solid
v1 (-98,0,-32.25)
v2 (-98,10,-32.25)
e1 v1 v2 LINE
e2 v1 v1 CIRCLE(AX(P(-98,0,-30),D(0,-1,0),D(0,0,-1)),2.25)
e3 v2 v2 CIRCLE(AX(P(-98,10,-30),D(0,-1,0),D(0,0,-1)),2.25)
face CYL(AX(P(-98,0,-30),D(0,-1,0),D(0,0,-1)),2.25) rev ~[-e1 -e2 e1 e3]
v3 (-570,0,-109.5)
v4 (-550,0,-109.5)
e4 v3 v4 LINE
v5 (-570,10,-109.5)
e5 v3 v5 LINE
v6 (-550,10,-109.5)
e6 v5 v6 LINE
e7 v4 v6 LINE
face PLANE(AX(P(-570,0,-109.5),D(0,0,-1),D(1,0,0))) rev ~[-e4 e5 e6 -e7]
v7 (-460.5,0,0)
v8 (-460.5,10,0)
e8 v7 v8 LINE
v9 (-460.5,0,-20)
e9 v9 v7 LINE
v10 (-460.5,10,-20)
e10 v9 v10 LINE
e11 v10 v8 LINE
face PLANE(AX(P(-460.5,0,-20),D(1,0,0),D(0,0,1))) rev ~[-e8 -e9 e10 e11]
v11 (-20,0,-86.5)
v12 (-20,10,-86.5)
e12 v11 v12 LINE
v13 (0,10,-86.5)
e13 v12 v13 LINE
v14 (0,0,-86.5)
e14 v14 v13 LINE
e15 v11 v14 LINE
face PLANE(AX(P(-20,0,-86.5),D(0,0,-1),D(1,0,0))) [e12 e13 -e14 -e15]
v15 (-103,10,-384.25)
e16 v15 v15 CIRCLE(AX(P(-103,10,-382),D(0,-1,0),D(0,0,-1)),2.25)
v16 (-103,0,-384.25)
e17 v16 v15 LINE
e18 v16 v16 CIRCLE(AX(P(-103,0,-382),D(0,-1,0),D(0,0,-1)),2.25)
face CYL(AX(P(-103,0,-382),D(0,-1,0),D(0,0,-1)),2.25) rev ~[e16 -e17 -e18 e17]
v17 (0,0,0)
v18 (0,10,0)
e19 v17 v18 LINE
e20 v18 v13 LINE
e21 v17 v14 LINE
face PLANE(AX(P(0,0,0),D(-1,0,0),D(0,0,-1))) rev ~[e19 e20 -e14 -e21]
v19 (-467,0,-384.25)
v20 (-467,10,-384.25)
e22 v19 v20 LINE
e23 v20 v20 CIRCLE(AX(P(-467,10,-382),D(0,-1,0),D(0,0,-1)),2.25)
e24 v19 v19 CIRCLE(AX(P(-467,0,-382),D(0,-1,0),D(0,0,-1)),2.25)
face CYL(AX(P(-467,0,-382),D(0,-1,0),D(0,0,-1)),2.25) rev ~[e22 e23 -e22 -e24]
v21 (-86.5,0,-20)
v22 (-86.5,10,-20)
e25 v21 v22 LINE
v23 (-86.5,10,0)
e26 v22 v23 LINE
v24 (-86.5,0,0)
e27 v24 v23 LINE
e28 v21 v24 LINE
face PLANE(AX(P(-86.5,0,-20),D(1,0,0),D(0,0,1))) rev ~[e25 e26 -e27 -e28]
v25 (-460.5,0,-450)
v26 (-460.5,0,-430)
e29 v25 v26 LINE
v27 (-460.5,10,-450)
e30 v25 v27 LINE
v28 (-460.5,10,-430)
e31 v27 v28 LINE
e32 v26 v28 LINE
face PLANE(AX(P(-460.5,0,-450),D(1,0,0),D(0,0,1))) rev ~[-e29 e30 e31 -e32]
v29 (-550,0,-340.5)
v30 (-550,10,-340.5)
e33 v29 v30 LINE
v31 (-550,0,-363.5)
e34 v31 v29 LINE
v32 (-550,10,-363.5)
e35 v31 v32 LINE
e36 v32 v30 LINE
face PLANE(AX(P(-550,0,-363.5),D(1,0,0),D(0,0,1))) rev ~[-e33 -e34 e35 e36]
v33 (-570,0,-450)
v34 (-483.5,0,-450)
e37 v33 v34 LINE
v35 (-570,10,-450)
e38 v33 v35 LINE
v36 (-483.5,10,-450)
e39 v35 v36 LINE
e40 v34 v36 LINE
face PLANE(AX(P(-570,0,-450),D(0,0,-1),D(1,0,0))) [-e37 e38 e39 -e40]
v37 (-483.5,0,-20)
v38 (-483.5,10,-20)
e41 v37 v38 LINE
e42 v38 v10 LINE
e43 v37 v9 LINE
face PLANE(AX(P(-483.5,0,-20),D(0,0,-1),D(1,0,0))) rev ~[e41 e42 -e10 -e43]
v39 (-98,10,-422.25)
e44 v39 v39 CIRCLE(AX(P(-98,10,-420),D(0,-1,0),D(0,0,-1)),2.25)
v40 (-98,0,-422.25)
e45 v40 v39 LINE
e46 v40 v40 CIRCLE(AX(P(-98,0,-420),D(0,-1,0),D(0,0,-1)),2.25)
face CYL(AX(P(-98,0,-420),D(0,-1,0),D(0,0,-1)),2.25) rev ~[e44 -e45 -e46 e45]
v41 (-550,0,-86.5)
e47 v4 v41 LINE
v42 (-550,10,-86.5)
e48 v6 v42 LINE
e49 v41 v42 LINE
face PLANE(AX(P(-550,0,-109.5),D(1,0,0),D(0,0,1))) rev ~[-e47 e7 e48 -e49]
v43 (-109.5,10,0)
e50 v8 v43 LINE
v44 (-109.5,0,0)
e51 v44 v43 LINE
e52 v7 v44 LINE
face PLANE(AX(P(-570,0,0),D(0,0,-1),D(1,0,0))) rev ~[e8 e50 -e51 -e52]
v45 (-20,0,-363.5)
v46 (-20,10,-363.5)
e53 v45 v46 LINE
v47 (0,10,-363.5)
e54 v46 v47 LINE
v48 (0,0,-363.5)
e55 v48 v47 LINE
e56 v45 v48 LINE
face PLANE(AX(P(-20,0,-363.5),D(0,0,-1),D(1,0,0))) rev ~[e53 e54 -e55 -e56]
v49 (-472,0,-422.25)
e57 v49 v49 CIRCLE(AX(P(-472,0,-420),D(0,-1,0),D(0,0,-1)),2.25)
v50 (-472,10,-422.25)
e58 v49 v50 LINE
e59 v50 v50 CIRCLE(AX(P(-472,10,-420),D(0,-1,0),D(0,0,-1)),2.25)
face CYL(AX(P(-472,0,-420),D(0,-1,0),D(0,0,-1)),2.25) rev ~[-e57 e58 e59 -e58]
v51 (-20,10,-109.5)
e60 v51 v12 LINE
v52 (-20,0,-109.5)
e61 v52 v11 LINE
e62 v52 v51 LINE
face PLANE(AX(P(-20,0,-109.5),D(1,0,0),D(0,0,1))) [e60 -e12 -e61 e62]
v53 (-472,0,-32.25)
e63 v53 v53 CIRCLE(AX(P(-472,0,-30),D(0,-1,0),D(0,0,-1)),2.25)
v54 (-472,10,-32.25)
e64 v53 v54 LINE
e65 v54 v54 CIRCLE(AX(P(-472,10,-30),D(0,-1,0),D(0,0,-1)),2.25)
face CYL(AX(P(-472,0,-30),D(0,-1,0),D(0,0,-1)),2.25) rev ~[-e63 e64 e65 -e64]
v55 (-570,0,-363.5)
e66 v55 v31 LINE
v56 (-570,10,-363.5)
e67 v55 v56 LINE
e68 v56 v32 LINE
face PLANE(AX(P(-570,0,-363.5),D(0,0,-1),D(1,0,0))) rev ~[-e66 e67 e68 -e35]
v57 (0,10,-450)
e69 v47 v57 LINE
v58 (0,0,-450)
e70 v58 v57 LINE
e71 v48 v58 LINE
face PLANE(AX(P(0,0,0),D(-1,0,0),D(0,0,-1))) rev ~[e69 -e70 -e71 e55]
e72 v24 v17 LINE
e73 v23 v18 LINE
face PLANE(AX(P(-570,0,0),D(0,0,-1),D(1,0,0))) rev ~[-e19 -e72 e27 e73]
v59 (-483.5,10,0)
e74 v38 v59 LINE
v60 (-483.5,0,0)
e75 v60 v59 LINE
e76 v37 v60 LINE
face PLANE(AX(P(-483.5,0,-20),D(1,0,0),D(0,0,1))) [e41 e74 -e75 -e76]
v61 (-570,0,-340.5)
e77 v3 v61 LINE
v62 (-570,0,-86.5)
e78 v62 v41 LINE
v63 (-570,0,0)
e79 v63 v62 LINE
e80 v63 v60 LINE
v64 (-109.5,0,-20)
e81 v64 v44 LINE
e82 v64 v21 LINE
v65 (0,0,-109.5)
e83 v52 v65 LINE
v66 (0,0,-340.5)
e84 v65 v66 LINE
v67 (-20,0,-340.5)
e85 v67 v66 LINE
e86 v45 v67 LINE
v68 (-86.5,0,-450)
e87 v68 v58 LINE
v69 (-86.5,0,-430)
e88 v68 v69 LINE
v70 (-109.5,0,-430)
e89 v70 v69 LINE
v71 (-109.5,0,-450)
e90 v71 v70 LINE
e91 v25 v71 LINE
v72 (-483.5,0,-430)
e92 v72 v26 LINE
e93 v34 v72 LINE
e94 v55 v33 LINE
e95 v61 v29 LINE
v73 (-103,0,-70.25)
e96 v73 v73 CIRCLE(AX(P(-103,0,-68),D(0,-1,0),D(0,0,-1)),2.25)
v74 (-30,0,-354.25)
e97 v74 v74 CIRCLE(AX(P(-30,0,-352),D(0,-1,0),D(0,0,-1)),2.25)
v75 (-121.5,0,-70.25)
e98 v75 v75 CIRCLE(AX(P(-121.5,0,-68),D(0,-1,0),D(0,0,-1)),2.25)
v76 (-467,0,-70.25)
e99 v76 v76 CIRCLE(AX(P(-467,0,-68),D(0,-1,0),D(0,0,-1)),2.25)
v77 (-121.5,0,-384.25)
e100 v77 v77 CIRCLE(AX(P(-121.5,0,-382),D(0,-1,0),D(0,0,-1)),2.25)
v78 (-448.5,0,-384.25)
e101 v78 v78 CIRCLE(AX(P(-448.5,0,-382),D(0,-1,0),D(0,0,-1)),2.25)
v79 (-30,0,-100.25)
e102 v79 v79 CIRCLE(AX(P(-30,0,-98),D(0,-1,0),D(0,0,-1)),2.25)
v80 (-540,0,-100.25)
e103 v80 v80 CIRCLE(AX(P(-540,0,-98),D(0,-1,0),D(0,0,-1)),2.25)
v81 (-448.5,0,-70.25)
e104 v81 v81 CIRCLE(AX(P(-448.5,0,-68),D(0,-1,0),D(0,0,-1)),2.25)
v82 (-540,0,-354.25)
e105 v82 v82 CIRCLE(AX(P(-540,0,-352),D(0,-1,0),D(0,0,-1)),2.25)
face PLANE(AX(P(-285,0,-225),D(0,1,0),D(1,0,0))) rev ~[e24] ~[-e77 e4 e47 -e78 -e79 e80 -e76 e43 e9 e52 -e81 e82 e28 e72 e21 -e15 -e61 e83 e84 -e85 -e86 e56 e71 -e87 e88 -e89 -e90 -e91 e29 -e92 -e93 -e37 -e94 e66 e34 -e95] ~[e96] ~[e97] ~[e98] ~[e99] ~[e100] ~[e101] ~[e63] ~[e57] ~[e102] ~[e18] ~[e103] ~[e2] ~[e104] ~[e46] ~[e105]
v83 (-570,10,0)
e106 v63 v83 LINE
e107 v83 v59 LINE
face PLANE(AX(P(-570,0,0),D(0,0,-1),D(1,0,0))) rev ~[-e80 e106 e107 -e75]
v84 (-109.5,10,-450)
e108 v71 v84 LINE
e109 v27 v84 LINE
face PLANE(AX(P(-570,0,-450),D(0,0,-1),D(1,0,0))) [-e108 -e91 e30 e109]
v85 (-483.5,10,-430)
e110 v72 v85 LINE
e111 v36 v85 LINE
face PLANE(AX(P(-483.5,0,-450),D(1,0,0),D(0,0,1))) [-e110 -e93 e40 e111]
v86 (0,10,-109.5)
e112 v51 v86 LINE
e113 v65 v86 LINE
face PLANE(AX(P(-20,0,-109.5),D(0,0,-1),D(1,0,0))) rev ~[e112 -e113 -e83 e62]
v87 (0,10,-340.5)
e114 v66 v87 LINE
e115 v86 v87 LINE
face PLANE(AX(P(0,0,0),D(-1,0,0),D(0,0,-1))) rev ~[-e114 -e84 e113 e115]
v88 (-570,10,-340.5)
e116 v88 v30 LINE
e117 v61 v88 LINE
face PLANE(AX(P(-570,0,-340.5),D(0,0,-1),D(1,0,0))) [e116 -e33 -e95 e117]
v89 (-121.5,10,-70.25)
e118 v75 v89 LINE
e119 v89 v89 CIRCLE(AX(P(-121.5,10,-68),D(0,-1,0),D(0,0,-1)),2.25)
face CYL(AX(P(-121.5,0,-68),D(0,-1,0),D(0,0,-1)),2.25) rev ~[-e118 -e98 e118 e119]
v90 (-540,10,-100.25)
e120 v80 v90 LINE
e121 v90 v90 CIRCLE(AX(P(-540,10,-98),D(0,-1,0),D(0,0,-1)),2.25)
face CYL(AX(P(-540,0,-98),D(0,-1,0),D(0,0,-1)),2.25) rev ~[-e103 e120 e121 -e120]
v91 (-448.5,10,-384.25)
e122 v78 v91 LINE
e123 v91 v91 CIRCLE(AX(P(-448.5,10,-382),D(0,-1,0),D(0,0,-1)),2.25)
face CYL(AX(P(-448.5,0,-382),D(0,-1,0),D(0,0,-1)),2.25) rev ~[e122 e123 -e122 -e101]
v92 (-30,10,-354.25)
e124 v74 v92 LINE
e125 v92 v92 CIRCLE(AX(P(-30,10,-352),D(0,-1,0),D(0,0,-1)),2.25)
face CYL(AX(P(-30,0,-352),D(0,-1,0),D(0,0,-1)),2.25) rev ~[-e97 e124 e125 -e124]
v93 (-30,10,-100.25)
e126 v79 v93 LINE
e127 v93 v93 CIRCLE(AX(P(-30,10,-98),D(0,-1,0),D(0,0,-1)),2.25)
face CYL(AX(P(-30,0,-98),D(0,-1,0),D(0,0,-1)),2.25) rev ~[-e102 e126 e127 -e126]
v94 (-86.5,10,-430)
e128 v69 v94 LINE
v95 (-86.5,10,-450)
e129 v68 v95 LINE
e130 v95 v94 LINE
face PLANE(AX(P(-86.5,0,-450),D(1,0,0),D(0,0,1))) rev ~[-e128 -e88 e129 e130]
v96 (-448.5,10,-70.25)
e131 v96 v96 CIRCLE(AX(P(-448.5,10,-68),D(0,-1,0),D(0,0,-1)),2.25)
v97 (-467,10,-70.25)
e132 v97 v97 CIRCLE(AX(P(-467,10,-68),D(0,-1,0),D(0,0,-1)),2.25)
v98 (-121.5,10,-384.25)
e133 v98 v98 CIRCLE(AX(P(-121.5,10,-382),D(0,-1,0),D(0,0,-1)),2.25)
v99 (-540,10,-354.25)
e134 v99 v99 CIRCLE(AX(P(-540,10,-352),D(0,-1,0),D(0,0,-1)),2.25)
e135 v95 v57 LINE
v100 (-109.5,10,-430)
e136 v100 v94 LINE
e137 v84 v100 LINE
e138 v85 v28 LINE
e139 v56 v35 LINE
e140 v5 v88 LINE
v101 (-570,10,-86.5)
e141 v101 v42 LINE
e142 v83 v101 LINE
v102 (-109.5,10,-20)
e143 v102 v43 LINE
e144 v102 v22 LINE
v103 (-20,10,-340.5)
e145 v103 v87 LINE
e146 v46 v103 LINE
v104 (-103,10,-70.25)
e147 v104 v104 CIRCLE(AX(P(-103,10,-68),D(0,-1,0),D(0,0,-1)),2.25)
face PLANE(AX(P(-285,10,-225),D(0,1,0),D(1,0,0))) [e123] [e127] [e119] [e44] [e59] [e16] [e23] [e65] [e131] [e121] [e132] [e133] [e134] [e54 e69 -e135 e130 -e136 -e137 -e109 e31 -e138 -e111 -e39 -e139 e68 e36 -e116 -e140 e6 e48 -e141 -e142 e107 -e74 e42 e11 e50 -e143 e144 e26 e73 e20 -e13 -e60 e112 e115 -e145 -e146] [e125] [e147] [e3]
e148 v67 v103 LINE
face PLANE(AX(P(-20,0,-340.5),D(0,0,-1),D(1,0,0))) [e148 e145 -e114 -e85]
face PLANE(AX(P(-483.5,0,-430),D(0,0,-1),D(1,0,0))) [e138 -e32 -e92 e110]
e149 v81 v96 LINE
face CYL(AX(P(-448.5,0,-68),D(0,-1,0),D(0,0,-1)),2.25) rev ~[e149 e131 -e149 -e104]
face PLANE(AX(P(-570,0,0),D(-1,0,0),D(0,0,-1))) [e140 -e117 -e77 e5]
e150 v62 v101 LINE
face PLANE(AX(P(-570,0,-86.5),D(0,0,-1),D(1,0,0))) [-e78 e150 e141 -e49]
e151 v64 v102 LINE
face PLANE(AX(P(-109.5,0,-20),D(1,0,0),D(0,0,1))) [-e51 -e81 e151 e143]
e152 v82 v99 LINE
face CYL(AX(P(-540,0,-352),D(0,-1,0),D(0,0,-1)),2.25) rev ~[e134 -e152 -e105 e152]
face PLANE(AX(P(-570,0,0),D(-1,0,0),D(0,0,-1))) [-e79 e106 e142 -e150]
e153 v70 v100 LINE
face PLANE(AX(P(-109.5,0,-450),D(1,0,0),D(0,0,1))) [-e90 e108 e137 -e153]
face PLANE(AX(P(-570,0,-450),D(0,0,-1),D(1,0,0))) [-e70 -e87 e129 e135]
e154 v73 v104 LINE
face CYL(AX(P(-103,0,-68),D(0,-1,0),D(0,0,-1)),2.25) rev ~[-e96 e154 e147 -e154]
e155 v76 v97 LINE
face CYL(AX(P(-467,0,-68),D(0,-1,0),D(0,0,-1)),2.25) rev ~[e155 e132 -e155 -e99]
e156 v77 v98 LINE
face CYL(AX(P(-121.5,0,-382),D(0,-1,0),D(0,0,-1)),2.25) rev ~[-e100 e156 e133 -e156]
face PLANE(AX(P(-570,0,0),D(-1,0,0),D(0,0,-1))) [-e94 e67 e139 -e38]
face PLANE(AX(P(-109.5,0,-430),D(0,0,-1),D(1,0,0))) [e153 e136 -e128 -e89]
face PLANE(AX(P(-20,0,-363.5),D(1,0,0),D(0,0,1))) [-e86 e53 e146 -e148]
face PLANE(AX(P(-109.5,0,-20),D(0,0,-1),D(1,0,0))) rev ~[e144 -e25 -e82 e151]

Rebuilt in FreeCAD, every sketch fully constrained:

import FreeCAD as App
import Part
import Sketcher


def add_polygon(sketch, points):
    """Adds a closed chain of lines whose ends are joined by coincident constraints."""
    first, n = sketch.GeometryCount, len(points)
    for a, b in zip(points, points[1:] + points[:1]):
        sketch.addGeometry(Part.LineSegment(App.Vector(*a, 0), App.Vector(*b, 0)), False)
    for i in range(n):
        sketch.addConstraint(Sketcher.Constraint("Coincident", first + i, 2, first + (i + 1) % n, 1))

doc = App.newDocument("Part")
body = doc.addObject("PartDesign::Body", "Body")

sketch1 = doc.addObject("Sketcher::SketchObject", "Sketch")
body.addObject(sketch1)
sketch1.AttachmentSupport = (doc.XZ_Plane, [""])
sketch1.MapMode = "FlatFace"
add_polygon(sketch1, [(-570, -450), (-570, 0), (0, 0), (0, -450)])
sketch1.addConstraint(Sketcher.Constraint("Vertical", 0))
sketch1.addConstraint(Sketcher.Constraint("Horizontal", 1))
sketch1.addConstraint(Sketcher.Constraint("Vertical", 2))
sketch1.addConstraint(Sketcher.Constraint("Horizontal", 3))
sketch1.addConstraint(Sketcher.Constraint("Coincident", 1, 2, -1, 1))
sketch1.addConstraint(Sketcher.Constraint("DistanceX", 1, 1, 1, 2, 570.0))
sketch1.addConstraint(Sketcher.Constraint("DistanceY", 0, 1, 0, 2, 450.0))
pad1 = doc.addObject("PartDesign::Pad", "Pad")
body.addObject(pad1)
pad1.Profile = sketch1
pad1.Length = 10
pad1.Reversed = True

sketch2 = doc.addObject("Sketcher::SketchObject", "Sketch001")
body.addObject(sketch2)
sketch2.AttachmentSupport = (doc.XZ_Plane, [""])
sketch2.MapMode = "FlatFace"
sketch2.addGeometry(Part.Circle(App.Vector(-467, -68, 0), App.Vector(0, 0, 1), 2.2), False)
sketch2.addGeometry(Part.Circle(App.Vector(-448.5, -68, 0), App.Vector(0, 0, 1), 2.2), False)
sketch2.addGeometry(Part.Circle(App.Vector(-121.5, -68, 0), App.Vector(0, 0, 1), 2.2), False)
sketch2.addGeometry(Part.Circle(App.Vector(-103, -68, 0), App.Vector(0, 0, 1), 2.2), False)
sketch2.addGeometry(Part.Circle(App.Vector(-467, -382, 0), App.Vector(0, 0, 1), 2.2), False)
sketch2.addGeometry(Part.Circle(App.Vector(-448.5, -382, 0), App.Vector(0, 0, 1), 2.2), False)
sketch2.addGeometry(Part.Circle(App.Vector(-121.5, -382, 0), App.Vector(0, 0, 1), 2.2), False)
sketch2.addGeometry(Part.Circle(App.Vector(-103, -382, 0), App.Vector(0, 0, 1), 2.2), False)
sketch2.addGeometry(Part.Circle(App.Vector(-472, -420, 0), App.Vector(0, 0, 1), 2.2), False)
sketch2.addGeometry(Part.Circle(App.Vector(-540, -352, 0), App.Vector(0, 0, 1), 2.2), False)
sketch2.addGeometry(Part.Circle(App.Vector(-540, -98, 0), App.Vector(0, 0, 1), 2.2), False)
sketch2.addGeometry(Part.Circle(App.Vector(-472, -30, 0), App.Vector(0, 0, 1), 2.2), False)
sketch2.addGeometry(Part.Circle(App.Vector(-98, -30, 0), App.Vector(0, 0, 1), 2.2), False)
sketch2.addGeometry(Part.Circle(App.Vector(-30, -98, 0), App.Vector(0, 0, 1), 2.2), False)
sketch2.addGeometry(Part.Circle(App.Vector(-30, -352, 0), App.Vector(0, 0, 1), 2.2), False)
sketch2.addGeometry(Part.Circle(App.Vector(-98, -420, 0), App.Vector(0, 0, 1), 2.2), False)
add_polygon(sketch2, [(-483.5, 0), (-483.5, -20), (-460.5, -20), (-460.5, 0)])
add_polygon(sketch2, [(-109.5, 0), (-109.5, -20), (-86.5, -20), (-86.5, 0)])
add_polygon(sketch2, [(-20, -86.5), (-20, -109.5), (0, -109.5), (0, -86.5)])
add_polygon(sketch2, [(-20, -340.5), (-20, -363.5), (0, -363.5), (0, -340.5)])
add_polygon(sketch2, [(-109.5, -430), (-109.5, -450), (-86.5, -450), (-86.5, -430)])
add_polygon(sketch2, [(-483.5, -430), (-483.5, -450), (-460.5, -450), (-460.5, -430)])
add_polygon(sketch2, [(-570, -340.5), (-570, -363.5), (-550, -363.5), (-550, -340.5)])
add_polygon(sketch2, [(-570, -86.5), (-570, -109.5), (-550, -109.5), (-550, -86.5)])
sketch2.addConstraint(Sketcher.Constraint("Vertical", 16))
sketch2.addConstraint(Sketcher.Constraint("Horizontal", 17))
sketch2.addConstraint(Sketcher.Constraint("Vertical", 18))
sketch2.addConstraint(Sketcher.Constraint("Horizontal", 19))
sketch2.addConstraint(Sketcher.Constraint("Vertical", 20))
sketch2.addConstraint(Sketcher.Constraint("Horizontal", 21))
sketch2.addConstraint(Sketcher.Constraint("Vertical", 22))
sketch2.addConstraint(Sketcher.Constraint("Horizontal", 23))
sketch2.addConstraint(Sketcher.Constraint("Vertical", 24))
sketch2.addConstraint(Sketcher.Constraint("Horizontal", 25))
sketch2.addConstraint(Sketcher.Constraint("Vertical", 26))
sketch2.addConstraint(Sketcher.Constraint("Horizontal", 27))
sketch2.addConstraint(Sketcher.Constraint("Vertical", 28))
sketch2.addConstraint(Sketcher.Constraint("Horizontal", 29))
sketch2.addConstraint(Sketcher.Constraint("Vertical", 30))
sketch2.addConstraint(Sketcher.Constraint("Horizontal", 31))
sketch2.addConstraint(Sketcher.Constraint("Vertical", 32))
sketch2.addConstraint(Sketcher.Constraint("Horizontal", 33))
sketch2.addConstraint(Sketcher.Constraint("Vertical", 34))
sketch2.addConstraint(Sketcher.Constraint("Horizontal", 35))
sketch2.addConstraint(Sketcher.Constraint("Vertical", 36))
sketch2.addConstraint(Sketcher.Constraint("Horizontal", 37))
sketch2.addConstraint(Sketcher.Constraint("Vertical", 38))
sketch2.addConstraint(Sketcher.Constraint("Horizontal", 39))
sketch2.addConstraint(Sketcher.Constraint("Vertical", 40))
sketch2.addConstraint(Sketcher.Constraint("Horizontal", 41))
sketch2.addConstraint(Sketcher.Constraint("Vertical", 42))
sketch2.addConstraint(Sketcher.Constraint("Horizontal", 43))
sketch2.addConstraint(Sketcher.Constraint("Vertical", 44))
sketch2.addConstraint(Sketcher.Constraint("Horizontal", 45))
sketch2.addConstraint(Sketcher.Constraint("Vertical", 46))
sketch2.addConstraint(Sketcher.Constraint("Horizontal", 47))
sketch2.addConstraint(Sketcher.Constraint("Equal", 0, 1))
sketch2.addConstraint(Sketcher.Constraint("Equal", 1, 2))
sketch2.addConstraint(Sketcher.Constraint("Equal", 2, 3))
sketch2.addConstraint(Sketcher.Constraint("Equal", 3, 4))
sketch2.addConstraint(Sketcher.Constraint("Equal", 4, 5))
sketch2.addConstraint(Sketcher.Constraint("Equal", 5, 6))
sketch2.addConstraint(Sketcher.Constraint("Equal", 6, 7))
sketch2.addConstraint(Sketcher.Constraint("Equal", 7, 8))
sketch2.addConstraint(Sketcher.Constraint("Equal", 8, 9))
sketch2.addConstraint(Sketcher.Constraint("Equal", 9, 10))
sketch2.addConstraint(Sketcher.Constraint("Equal", 10, 11))
sketch2.addConstraint(Sketcher.Constraint("Equal", 11, 12))
sketch2.addConstraint(Sketcher.Constraint("Equal", 12, 13))
sketch2.addConstraint(Sketcher.Constraint("Equal", 13, 14))
sketch2.addConstraint(Sketcher.Constraint("Equal", 14, 15))
sketch2.addConstraint(Sketcher.Constraint("PointOnObject", 18, 2, -1))
sketch2.addConstraint(Sketcher.Constraint("PointOnObject", 22, 2, -1))
sketch2.addConstraint(Sketcher.Constraint("PointOnObject", 25, 2, -2))
sketch2.addConstraint(Sketcher.Constraint("PointOnObject", 29, 2, -2))
sketch2.addConstraint(Sketcher.Constraint("Horizontal", 0, 3, 1, 3))
sketch2.addConstraint(Sketcher.Constraint("Horizontal", 1, 3, 2, 3))
sketch2.addConstraint(Sketcher.Constraint("Horizontal", 2, 3, 3, 3))
sketch2.addConstraint(Sketcher.Constraint("Horizontal", 4, 3, 5, 3))
sketch2.addConstraint(Sketcher.Constraint("Horizontal", 5, 3, 6, 3))
sketch2.addConstraint(Sketcher.Constraint("Horizontal", 6, 3, 7, 3))
sketch2.addConstraint(Sketcher.Constraint("Horizontal", 11, 3, 12, 3))
sketch2.addConstraint(Sketcher.Constraint("Horizontal", 10, 3, 13, 3))
sketch2.addConstraint(Sketcher.Constraint("Horizontal", 9, 3, 14, 3))
sketch2.addConstraint(Sketcher.Constraint("Horizontal", 8, 3, 15, 3))
sketch2.addConstraint(Sketcher.Constraint("Horizontal", 17, 2, 20, 2))
sketch2.addConstraint(Sketcher.Constraint("Horizontal", 33, 2, 36, 2))
sketch2.addConstraint(Sketcher.Constraint("Horizontal", 35, 2, 38, 2))
sketch2.addConstraint(Sketcher.Constraint("Horizontal", 29, 2, 40, 2))
sketch2.addConstraint(Sketcher.Constraint("Horizontal", 31, 2, 42, 2))
sketch2.addConstraint(Sketcher.Constraint("Horizontal", 25, 2, 44, 2))
sketch2.addConstraint(Sketcher.Constraint("Horizontal", 27, 2, 46, 2))
sketch2.addConstraint(Sketcher.Constraint("Vertical", 0, 3, 4, 3))
sketch2.addConstraint(Sketcher.Constraint("Vertical", 1, 3, 5, 3))
sketch2.addConstraint(Sketcher.Constraint("Vertical", 2, 3, 6, 3))
sketch2.addConstraint(Sketcher.Constraint("Vertical", 3, 3, 7, 3))
sketch2.addConstraint(Sketcher.Constraint("Vertical", 9, 3, 10, 3))
sketch2.addConstraint(Sketcher.Constraint("Vertical", 8, 3, 11, 3))
sketch2.addConstraint(Sketcher.Constraint("Vertical", 13, 3, 14, 3))
sketch2.addConstraint(Sketcher.Constraint("Vertical", 12, 3, 15, 3))
sketch2.addConstraint(Sketcher.Constraint("Vertical", 27, 2, 28, 2))
sketch2.addConstraint(Sketcher.Constraint("Vertical", 23, 2, 32, 2))
sketch2.addConstraint(Sketcher.Constraint("Vertical", 22, 2, 33, 2))
sketch2.addConstraint(Sketcher.Constraint("Vertical", 19, 2, 36, 2))
sketch2.addConstraint(Sketcher.Constraint("Vertical", 18, 2, 37, 2))
sketch2.addConstraint(Sketcher.Constraint("Vertical", 43, 2, 44, 2))
sketch2.addConstraint(Sketcher.Constraint("Vertical", 42, 2, 45, 2))
sketch2.addConstraint(Sketcher.Constraint("Equal", 19, 21))
sketch2.addConstraint(Sketcher.Constraint("Equal", 31, 41))
sketch2.addConstraint(Sketcher.Constraint("Equal", 47, 16))
sketch2.addConstraint(Sketcher.Constraint("Equal", 39, 24))
sketch2.addConstraint(Sketcher.Constraint("Equal", 26, 28))
sketch2.addConstraint(Sketcher.Constraint("Equal", 22, 32))
sketch2.addConstraint(Sketcher.Constraint("Diameter", 0, 4.5))
sketch2.addConstraint(Sketcher.Constraint("DistanceX", 17, 1, 17, 2, 23.0))
sketch2.addConstraint(Sketcher.Constraint("DistanceX", 25, 1, 25, 2, 20.0))
sketch2.addConstraint(Sketcher.Constraint("DistanceX", 0, 3, -1, 1, 467.0))
sketch2.addConstraint(Sketcher.Constraint("DistanceY", 0, 3, -1, 1, 68.0))
sketch2.addConstraint(Sketcher.Constraint("DistanceX", 3, 3, -1, 1, 103.0))
sketch2.addConstraint(Sketcher.Constraint("DistanceY", 4, 3, -1, 1, 382.0))
sketch2.addConstraint(Sketcher.Constraint("DistanceX", 8, 3, -1, 1, 472.0))
sketch2.addConstraint(Sketcher.Constraint("DistanceY", 8, 3, -1, 1, 420.0))
sketch2.addConstraint(Sketcher.Constraint("DistanceX", 9, 3, -1, 1, 540.0))
sketch2.addConstraint(Sketcher.Constraint("DistanceY", 9, 3, -1, 1, 352.0))
sketch2.addConstraint(Sketcher.Constraint("DistanceY", 10, 3, -1, 1, 98.0))
sketch2.addConstraint(Sketcher.Constraint("DistanceY", 11, 3, -1, 1, 30.0))
sketch2.addConstraint(Sketcher.Constraint("DistanceX", 12, 3, -1, 1, 98.0))
sketch2.addConstraint(Sketcher.Constraint("DistanceX", 13, 3, -1, 1, 30.0))
sketch2.addConstraint(Sketcher.Constraint("DistanceY", 32, 2, -1, 1, 450.0))
sketch2.addConstraint(Sketcher.Constraint("DistanceX", 40, 2, -1, 1, 570.0))
sketch2.addConstraint(Sketcher.Constraint("DistanceX", 1, 3, 2, 3, 327.0))
sketch2.addConstraint(Sketcher.Constraint("DistanceX", 16, 2, 1, 3, 35.0))
sketch2.addConstraint(Sketcher.Constraint("DistanceX", 2, 3, 20, 2, 12.0))
sketch2.addConstraint(Sketcher.Constraint("DistanceY", 28, 2, 24, 2, 254.0))
sketch2.addConstraint(Sketcher.Constraint("DistanceX", 1, 3, -1, 1, 448.5))
sketch2.addConstraint(Sketcher.Constraint("DistanceY", 24, 2, -1, 1, 109.5))
pocket1 = doc.addObject("PartDesign::Pocket", "Pocket")
body.addObject(pocket1)
pocket1.Profile = sketch2
pocket1.Length = 10

doc.recompute()
